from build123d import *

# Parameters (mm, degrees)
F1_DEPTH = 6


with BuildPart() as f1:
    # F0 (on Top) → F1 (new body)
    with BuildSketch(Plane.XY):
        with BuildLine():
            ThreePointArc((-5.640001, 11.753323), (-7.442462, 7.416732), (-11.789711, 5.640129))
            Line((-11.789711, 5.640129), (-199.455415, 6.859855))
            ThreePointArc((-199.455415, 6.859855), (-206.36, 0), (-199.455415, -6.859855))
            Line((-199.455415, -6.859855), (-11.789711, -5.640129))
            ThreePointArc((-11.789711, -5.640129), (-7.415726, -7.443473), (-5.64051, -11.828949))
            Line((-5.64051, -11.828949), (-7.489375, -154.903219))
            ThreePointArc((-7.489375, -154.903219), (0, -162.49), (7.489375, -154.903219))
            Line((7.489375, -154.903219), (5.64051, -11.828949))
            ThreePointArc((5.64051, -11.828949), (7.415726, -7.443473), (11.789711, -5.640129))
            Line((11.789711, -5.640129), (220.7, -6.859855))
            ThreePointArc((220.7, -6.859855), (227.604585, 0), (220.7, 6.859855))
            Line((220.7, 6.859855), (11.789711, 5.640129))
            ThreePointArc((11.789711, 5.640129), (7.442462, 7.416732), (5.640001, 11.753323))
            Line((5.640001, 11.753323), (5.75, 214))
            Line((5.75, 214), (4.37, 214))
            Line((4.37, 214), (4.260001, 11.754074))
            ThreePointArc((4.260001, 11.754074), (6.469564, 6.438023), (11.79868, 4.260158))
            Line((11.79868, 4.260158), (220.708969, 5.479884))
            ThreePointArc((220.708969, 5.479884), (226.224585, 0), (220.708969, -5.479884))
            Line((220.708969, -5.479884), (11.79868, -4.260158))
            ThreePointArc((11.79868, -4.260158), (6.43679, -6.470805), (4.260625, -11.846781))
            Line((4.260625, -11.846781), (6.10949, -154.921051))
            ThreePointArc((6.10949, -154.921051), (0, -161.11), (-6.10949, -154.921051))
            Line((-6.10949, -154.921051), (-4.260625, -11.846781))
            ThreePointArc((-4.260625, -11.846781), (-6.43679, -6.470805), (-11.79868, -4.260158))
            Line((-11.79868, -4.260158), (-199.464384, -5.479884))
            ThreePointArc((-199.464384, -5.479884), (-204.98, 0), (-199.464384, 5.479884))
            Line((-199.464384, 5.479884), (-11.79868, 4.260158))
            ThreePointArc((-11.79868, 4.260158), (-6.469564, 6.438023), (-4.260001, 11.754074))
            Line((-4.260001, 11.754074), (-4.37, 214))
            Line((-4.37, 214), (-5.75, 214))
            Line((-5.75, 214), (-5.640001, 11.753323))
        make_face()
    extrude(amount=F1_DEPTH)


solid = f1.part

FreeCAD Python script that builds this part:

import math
import FreeCAD as App
import Part
import Sketcher
Q = App.Units.Quantity

doc = App.newDocument("Part")
body = doc.addObject("PartDesign::Body", "Body")

# Sketch on XY plane
sketch1 = body.newObject("Sketcher::SketchObject", "Sketch")
sketch1.AttachmentSupport = (doc.getObject("XY_Plane"), [""])
sketch1.MapMode = "FlatFace"
sketch1.addGeometry([
    Part.ArcOfCircle(Part.Circle(App.Vector(-11.750001, 11.750001, 0), App.Vector(0, 0, 1), 6.110001), math.radians(-90.372379), math.radians(0.031153)),  # 0
    Part.LineSegment(App.Vector(-11.789711, 5.640129, 0), App.Vector(-199.455415, 6.859855, 0)),  # 1
    Part.ArcOfCircle(Part.Circle(App.Vector(-199.5, 0, 0), App.Vector(0, 0, 1), 6.86), math.radians(89.627616), math.radians(270.372384)),  # 2
    Part.LineSegment(App.Vector(-199.455415, -6.859855, 0), App.Vector(-11.789711, -5.640129, 0)),  # 3
    Part.ArcOfCircle(Part.Circle(App.Vector(-11.749999, -11.749999, 0), App.Vector(0, 0, 1), 6.109999), math.radians(-0.740364), math.radians(90.372397)),  # 4
    Part.LineSegment(App.Vector(-5.64051, -11.828949, 0), App.Vector(-7.489375, -154.903219, 0)),  # 5
    Part.ArcOfCircle(Part.Circle(App.Vector(0, -155, 0), App.Vector(0, 0, 1), 7.49), math.radians(179.259642), math.radians(360.740358)),  # 6
    Part.LineSegment(App.Vector(7.489375, -154.903219, 0), App.Vector(5.64051, -11.828949, 0)),  # 7
    Part.ArcOfCircle(Part.Circle(App.Vector(11.749999, -11.749999, 0), App.Vector(0, 0, 1), 6.109999), math.radians(89.627603), math.radians(180.740364)),  # 8
    Part.LineSegment(App.Vector(11.789711, -5.640129, 0), App.Vector(220.7, -6.859855, 0)),  # 9
    Part.ArcOfCircle(Part.Circle(App.Vector(220.744585, 0, 0), App.Vector(0, 0, 1), 6.86), math.radians(-90.372384), math.radians(90.372384)),  # 10
    Part.LineSegment(App.Vector(220.7, 6.859855, 0), App.Vector(11.789711, 5.640129, 0)),  # 11
    Part.ArcOfCircle(Part.Circle(App.Vector(11.750001, 11.750001, 0), App.Vector(0, 0, 1), 6.110001), math.radians(179.968847), math.radians(270.372379)),  # 12
    Part.LineSegment(App.Vector(5.640001, 11.753323, 0), App.Vector(5.75, 214, 0)),  # 13
    Part.LineSegment(App.Vector(5.75, 214, 0), App.Vector(4.37, 214, 0)),  # 14
    Part.LineSegment(App.Vector(4.37, 214, 0), App.Vector(4.260001, 11.754074, 0)),  # 15
    Part.ArcOfCircle(Part.Circle(App.Vector(11.75, 11.75, 0), App.Vector(0, 0, 1), 7.49), math.radians(179.968833), math.radians(270.372389)),  # 16
    Part.LineSegment(App.Vector(11.79868, 4.260158, 0), App.Vector(220.708969, 5.479884, 0)),  # 17
    Part.ArcOfCircle(Part.Circle(App.Vector(220.744585, 0, 0), App.Vector(0, 0, 1), 5.48), math.radians(-90.372386), math.radians(90.372386)),  # 18
    Part.LineSegment(App.Vector(220.708969, -5.479884, 0), App.Vector(11.79868, -4.260158, 0)),  # 19
    Part.ArcOfCircle(Part.Circle(App.Vector(11.75, -11.750001, 0), App.Vector(0, 0, 1), 7.490001), math.radians(89.627617), math.radians(180.740356)),  # 20
    Part.LineSegment(App.Vector(4.260625, -11.846781, 0), App.Vector(6.10949, -154.921051, 0)),  # 21
    Part.ArcOfCircle(Part.Circle(App.Vector(0, -155, 0), App.Vector(0, 0, 1), 6.11), math.radians(179.259646), math.radians(360.740354)),  # 22
    Part.LineSegment(App.Vector(-6.10949, -154.921051, 0), App.Vector(-4.260625, -11.846781, 0)),  # 23
    Part.ArcOfCircle(Part.Circle(App.Vector(-11.75, -11.750001, 0), App.Vector(0, 0, 1), 7.490001), math.radians(-0.740356), math.radians(90.372383)),  # 24
    Part.LineSegment(App.Vector(-11.79868, -4.260158, 0), App.Vector(-199.464384, -5.479884, 0)),  # 25
    Part.ArcOfCircle(Part.Circle(App.Vector(-199.5, 0, 0), App.Vector(0, 0, 1), 5.48), math.radians(89.627614), math.radians(270.372386)),  # 26
    Part.LineSegment(App.Vector(-199.464384, 5.479884, 0), App.Vector(-11.79868, 4.260158, 0)),  # 27
    Part.ArcOfCircle(Part.Circle(App.Vector(-11.75, 11.75, 0), App.Vector(0, 0, 1), 7.49), math.radians(-90.372389), math.radians(0.031167)),  # 28
    Part.LineSegment(App.Vector(-4.260001, 11.754074, 0), App.Vector(-4.37, 214, 0)),  # 29
    Part.LineSegment(App.Vector(-4.37, 214, 0), App.Vector(-5.75, 214, 0)),  # 30
    Part.LineSegment(App.Vector(-5.75, 214, 0), App.Vector(-5.640001, 11.753323, 0)),  # 31
], False)
sketch1.addConstraint([
    Sketcher.Constraint("Tangent", 0, 1, 1, 1),
    Sketcher.Constraint("Tangent", 1, 2, 2, 1),
    Sketcher.Constraint("Tangent", 2, 2, 3, 1),
    Sketcher.Constraint("Tangent", 3, 2, 4, 2),
    Sketcher.Constraint("Tangent", 4, 1, 5, 1),
    Sketcher.Constraint("Tangent", 5, 2, 6, 1),
    Sketcher.Constraint("Tangent", 6, 2, 7, 1),
    Sketcher.Constraint("Tangent", 7, 2, 8, 2),
    Sketcher.Constraint("Coincident", 8, 1, 9, 1),
    Sketcher.Constraint("Coincident", 9, 2, 10, 1),
    Sketcher.Constraint("Coincident", 10, 2, 11, 1),
    Sketcher.Constraint("Coincident", 11, 2, 12, 2),
    Sketcher.Constraint("Tangent", 12, 1, 13, 1),
    Sketcher.Constraint("Coincident", 13, 2, 14, 1),
    Sketcher.Constraint("Coincident", 14, 2, 15, 1),
    Sketcher.Constraint("Tangent", 15, 2, 16, 1),
    Sketcher.Constraint("Coincident", 16, 2, 17, 1),
    Sketcher.Constraint("Coincident", 17, 2, 18, 2),
    Sketcher.Constraint("Coincident", 18, 1, 19, 1),
    Sketcher.Constraint("Coincident", 19, 2, 20, 1),
    Sketcher.Constraint("Tangent", 20, 2, 21, 1),
    Sketcher.Constraint("Tangent", 21, 2, 22, 2),
    Sketcher.Constraint("Tangent", 22, 1, 23, 1),
    Sketcher.Constraint("Tangent", 23, 2, 24, 1),
    Sketcher.Constraint("Tangent", 24, 2, 25, 1),
    Sketcher.Constraint("Tangent", 25, 2, 26, 2),
    Sketcher.Constraint("Tangent", 26, 1, 27, 1),
    Sketcher.Constraint("Tangent", 27, 2, 28, 1),
    Sketcher.Constraint("Tangent", 28, 2, 29, 1),
    Sketcher.Constraint("Coincident", 29, 2, 30, 1),
    Sketcher.Constraint("Coincident", 30, 2, 31, 1),
    Sketcher.Constraint("Tangent", 31, 2, 0, 2),
    Sketcher.Constraint("Horizontal", 14),
    Sketcher.Constraint("Horizontal", 30),
    Sketcher.Constraint("Coincident", 16, 3, 12, 3),
    Sketcher.Constraint("Coincident", 18, 3, 10, 3),
    Sketcher.Constraint("Coincident", 20, 3, 8, 3),
    Sketcher.Constraint("Coincident", 22, 3, 6, 3),
    Sketcher.Constraint("Coincident", 24, 3, 4, 3),
    Sketcher.Constraint("Coincident", 26, 3, 2, 3),
    Sketcher.Constraint("Coincident", 28, 3, 0, 3),
    Sketcher.Constraint("Equal", 0, 4),
    Sketcher.Constraint("Equal", 4, 8),
    Sketcher.Constraint("Equal", 2, 10),
    Sketcher.Constraint("Equal", 8, 12),
    Sketcher.Constraint("Equal", 6, 16),
    Sketcher.Constraint("Equal", 16, 20),
    Sketcher.Constraint("Equal", 12, 22),
    Sketcher.Constraint("Equal", 20, 24),
    Sketcher.Constraint("Equal", 18, 26),
    Sketcher.Constraint("Equal", 24, 28),
    Sketcher.Constraint("Symmetric", 0, 3, 8, 3, -1, 1),
    Sketcher.Constraint("Symmetric", 4, 3, 12, 3, -1, 1),
    Sketcher.Constraint("Symmetric", 4, 3, 8, 3, -2),
    Sketcher.Constraint("Symmetric", 14, 2, 29, 2, -2),
    Sketcher.Constraint("Symmetric", 9, 2, 10, 2, -1),
    Sketcher.Constraint("PointOnObject", 2, 3, -1),
    Sketcher.Constraint("PointOnObject", 6, 3, -2),
    Sketcher.Constraint("Parallel", 13, 15),
    Sketcher.Constraint("Parallel", 11, 17),
    Sketcher.Constraint("Parallel", 29, 31),
    Sketcher.Constraint("Horizontal", 3, 2, 8, 1),
    Sketcher.Constraint("Horizontal", 2, 2, 9, 2),
    Sketcher.Constraint("Horizontal", 0, 1, 11, 2),
    Sketcher.Constraint("Horizontal", 19, 2, 24, 2),
    Sketcher.Constraint("Horizontal", 18, 1, 25, 2),
    Sketcher.Constraint("Horizontal", 17, 2, 26, 1),
    Sketcher.Constraint("Horizontal", 16, 2, 27, 2),
    Sketcher.Constraint("Radius", 0, Q("6.110001 mm")),
    Sketcher.Constraint("Radius", 2, Q("6.86 mm")),
    Sketcher.Constraint("Radius", 6, Q("7.49 mm")),
    Sketcher.Constraint("DistanceY", 6, 3, -1, 1, Q("155 mm")),
    Sketcher.Constraint("DistanceY", -1, 1, 13, 2, Q("214 mm")),
    Sketcher.Constraint("DistanceX", 13, 2, 12, 3, Q("6.000001 mm")),
    Sketcher.Constraint("DistanceX", 2, 3, -1, 1, Q("199.5 mm")),
    Sketcher.Constraint("DistanceX", -1, 1, 9, 2, Q("220.7 mm")),
    Sketcher.Constraint("DistanceY", 4, 3, 0, 3, Q("23.5 mm")),
    Sketcher.Constraint("DistanceX", 0, 3, 8, 3, Q("23.5 mm")),
])
pad1 = body.newObject("PartDesign::Pad", "Pad")
pad1.Profile = sketch1
pad1.Length = 6

doc.recompute()
